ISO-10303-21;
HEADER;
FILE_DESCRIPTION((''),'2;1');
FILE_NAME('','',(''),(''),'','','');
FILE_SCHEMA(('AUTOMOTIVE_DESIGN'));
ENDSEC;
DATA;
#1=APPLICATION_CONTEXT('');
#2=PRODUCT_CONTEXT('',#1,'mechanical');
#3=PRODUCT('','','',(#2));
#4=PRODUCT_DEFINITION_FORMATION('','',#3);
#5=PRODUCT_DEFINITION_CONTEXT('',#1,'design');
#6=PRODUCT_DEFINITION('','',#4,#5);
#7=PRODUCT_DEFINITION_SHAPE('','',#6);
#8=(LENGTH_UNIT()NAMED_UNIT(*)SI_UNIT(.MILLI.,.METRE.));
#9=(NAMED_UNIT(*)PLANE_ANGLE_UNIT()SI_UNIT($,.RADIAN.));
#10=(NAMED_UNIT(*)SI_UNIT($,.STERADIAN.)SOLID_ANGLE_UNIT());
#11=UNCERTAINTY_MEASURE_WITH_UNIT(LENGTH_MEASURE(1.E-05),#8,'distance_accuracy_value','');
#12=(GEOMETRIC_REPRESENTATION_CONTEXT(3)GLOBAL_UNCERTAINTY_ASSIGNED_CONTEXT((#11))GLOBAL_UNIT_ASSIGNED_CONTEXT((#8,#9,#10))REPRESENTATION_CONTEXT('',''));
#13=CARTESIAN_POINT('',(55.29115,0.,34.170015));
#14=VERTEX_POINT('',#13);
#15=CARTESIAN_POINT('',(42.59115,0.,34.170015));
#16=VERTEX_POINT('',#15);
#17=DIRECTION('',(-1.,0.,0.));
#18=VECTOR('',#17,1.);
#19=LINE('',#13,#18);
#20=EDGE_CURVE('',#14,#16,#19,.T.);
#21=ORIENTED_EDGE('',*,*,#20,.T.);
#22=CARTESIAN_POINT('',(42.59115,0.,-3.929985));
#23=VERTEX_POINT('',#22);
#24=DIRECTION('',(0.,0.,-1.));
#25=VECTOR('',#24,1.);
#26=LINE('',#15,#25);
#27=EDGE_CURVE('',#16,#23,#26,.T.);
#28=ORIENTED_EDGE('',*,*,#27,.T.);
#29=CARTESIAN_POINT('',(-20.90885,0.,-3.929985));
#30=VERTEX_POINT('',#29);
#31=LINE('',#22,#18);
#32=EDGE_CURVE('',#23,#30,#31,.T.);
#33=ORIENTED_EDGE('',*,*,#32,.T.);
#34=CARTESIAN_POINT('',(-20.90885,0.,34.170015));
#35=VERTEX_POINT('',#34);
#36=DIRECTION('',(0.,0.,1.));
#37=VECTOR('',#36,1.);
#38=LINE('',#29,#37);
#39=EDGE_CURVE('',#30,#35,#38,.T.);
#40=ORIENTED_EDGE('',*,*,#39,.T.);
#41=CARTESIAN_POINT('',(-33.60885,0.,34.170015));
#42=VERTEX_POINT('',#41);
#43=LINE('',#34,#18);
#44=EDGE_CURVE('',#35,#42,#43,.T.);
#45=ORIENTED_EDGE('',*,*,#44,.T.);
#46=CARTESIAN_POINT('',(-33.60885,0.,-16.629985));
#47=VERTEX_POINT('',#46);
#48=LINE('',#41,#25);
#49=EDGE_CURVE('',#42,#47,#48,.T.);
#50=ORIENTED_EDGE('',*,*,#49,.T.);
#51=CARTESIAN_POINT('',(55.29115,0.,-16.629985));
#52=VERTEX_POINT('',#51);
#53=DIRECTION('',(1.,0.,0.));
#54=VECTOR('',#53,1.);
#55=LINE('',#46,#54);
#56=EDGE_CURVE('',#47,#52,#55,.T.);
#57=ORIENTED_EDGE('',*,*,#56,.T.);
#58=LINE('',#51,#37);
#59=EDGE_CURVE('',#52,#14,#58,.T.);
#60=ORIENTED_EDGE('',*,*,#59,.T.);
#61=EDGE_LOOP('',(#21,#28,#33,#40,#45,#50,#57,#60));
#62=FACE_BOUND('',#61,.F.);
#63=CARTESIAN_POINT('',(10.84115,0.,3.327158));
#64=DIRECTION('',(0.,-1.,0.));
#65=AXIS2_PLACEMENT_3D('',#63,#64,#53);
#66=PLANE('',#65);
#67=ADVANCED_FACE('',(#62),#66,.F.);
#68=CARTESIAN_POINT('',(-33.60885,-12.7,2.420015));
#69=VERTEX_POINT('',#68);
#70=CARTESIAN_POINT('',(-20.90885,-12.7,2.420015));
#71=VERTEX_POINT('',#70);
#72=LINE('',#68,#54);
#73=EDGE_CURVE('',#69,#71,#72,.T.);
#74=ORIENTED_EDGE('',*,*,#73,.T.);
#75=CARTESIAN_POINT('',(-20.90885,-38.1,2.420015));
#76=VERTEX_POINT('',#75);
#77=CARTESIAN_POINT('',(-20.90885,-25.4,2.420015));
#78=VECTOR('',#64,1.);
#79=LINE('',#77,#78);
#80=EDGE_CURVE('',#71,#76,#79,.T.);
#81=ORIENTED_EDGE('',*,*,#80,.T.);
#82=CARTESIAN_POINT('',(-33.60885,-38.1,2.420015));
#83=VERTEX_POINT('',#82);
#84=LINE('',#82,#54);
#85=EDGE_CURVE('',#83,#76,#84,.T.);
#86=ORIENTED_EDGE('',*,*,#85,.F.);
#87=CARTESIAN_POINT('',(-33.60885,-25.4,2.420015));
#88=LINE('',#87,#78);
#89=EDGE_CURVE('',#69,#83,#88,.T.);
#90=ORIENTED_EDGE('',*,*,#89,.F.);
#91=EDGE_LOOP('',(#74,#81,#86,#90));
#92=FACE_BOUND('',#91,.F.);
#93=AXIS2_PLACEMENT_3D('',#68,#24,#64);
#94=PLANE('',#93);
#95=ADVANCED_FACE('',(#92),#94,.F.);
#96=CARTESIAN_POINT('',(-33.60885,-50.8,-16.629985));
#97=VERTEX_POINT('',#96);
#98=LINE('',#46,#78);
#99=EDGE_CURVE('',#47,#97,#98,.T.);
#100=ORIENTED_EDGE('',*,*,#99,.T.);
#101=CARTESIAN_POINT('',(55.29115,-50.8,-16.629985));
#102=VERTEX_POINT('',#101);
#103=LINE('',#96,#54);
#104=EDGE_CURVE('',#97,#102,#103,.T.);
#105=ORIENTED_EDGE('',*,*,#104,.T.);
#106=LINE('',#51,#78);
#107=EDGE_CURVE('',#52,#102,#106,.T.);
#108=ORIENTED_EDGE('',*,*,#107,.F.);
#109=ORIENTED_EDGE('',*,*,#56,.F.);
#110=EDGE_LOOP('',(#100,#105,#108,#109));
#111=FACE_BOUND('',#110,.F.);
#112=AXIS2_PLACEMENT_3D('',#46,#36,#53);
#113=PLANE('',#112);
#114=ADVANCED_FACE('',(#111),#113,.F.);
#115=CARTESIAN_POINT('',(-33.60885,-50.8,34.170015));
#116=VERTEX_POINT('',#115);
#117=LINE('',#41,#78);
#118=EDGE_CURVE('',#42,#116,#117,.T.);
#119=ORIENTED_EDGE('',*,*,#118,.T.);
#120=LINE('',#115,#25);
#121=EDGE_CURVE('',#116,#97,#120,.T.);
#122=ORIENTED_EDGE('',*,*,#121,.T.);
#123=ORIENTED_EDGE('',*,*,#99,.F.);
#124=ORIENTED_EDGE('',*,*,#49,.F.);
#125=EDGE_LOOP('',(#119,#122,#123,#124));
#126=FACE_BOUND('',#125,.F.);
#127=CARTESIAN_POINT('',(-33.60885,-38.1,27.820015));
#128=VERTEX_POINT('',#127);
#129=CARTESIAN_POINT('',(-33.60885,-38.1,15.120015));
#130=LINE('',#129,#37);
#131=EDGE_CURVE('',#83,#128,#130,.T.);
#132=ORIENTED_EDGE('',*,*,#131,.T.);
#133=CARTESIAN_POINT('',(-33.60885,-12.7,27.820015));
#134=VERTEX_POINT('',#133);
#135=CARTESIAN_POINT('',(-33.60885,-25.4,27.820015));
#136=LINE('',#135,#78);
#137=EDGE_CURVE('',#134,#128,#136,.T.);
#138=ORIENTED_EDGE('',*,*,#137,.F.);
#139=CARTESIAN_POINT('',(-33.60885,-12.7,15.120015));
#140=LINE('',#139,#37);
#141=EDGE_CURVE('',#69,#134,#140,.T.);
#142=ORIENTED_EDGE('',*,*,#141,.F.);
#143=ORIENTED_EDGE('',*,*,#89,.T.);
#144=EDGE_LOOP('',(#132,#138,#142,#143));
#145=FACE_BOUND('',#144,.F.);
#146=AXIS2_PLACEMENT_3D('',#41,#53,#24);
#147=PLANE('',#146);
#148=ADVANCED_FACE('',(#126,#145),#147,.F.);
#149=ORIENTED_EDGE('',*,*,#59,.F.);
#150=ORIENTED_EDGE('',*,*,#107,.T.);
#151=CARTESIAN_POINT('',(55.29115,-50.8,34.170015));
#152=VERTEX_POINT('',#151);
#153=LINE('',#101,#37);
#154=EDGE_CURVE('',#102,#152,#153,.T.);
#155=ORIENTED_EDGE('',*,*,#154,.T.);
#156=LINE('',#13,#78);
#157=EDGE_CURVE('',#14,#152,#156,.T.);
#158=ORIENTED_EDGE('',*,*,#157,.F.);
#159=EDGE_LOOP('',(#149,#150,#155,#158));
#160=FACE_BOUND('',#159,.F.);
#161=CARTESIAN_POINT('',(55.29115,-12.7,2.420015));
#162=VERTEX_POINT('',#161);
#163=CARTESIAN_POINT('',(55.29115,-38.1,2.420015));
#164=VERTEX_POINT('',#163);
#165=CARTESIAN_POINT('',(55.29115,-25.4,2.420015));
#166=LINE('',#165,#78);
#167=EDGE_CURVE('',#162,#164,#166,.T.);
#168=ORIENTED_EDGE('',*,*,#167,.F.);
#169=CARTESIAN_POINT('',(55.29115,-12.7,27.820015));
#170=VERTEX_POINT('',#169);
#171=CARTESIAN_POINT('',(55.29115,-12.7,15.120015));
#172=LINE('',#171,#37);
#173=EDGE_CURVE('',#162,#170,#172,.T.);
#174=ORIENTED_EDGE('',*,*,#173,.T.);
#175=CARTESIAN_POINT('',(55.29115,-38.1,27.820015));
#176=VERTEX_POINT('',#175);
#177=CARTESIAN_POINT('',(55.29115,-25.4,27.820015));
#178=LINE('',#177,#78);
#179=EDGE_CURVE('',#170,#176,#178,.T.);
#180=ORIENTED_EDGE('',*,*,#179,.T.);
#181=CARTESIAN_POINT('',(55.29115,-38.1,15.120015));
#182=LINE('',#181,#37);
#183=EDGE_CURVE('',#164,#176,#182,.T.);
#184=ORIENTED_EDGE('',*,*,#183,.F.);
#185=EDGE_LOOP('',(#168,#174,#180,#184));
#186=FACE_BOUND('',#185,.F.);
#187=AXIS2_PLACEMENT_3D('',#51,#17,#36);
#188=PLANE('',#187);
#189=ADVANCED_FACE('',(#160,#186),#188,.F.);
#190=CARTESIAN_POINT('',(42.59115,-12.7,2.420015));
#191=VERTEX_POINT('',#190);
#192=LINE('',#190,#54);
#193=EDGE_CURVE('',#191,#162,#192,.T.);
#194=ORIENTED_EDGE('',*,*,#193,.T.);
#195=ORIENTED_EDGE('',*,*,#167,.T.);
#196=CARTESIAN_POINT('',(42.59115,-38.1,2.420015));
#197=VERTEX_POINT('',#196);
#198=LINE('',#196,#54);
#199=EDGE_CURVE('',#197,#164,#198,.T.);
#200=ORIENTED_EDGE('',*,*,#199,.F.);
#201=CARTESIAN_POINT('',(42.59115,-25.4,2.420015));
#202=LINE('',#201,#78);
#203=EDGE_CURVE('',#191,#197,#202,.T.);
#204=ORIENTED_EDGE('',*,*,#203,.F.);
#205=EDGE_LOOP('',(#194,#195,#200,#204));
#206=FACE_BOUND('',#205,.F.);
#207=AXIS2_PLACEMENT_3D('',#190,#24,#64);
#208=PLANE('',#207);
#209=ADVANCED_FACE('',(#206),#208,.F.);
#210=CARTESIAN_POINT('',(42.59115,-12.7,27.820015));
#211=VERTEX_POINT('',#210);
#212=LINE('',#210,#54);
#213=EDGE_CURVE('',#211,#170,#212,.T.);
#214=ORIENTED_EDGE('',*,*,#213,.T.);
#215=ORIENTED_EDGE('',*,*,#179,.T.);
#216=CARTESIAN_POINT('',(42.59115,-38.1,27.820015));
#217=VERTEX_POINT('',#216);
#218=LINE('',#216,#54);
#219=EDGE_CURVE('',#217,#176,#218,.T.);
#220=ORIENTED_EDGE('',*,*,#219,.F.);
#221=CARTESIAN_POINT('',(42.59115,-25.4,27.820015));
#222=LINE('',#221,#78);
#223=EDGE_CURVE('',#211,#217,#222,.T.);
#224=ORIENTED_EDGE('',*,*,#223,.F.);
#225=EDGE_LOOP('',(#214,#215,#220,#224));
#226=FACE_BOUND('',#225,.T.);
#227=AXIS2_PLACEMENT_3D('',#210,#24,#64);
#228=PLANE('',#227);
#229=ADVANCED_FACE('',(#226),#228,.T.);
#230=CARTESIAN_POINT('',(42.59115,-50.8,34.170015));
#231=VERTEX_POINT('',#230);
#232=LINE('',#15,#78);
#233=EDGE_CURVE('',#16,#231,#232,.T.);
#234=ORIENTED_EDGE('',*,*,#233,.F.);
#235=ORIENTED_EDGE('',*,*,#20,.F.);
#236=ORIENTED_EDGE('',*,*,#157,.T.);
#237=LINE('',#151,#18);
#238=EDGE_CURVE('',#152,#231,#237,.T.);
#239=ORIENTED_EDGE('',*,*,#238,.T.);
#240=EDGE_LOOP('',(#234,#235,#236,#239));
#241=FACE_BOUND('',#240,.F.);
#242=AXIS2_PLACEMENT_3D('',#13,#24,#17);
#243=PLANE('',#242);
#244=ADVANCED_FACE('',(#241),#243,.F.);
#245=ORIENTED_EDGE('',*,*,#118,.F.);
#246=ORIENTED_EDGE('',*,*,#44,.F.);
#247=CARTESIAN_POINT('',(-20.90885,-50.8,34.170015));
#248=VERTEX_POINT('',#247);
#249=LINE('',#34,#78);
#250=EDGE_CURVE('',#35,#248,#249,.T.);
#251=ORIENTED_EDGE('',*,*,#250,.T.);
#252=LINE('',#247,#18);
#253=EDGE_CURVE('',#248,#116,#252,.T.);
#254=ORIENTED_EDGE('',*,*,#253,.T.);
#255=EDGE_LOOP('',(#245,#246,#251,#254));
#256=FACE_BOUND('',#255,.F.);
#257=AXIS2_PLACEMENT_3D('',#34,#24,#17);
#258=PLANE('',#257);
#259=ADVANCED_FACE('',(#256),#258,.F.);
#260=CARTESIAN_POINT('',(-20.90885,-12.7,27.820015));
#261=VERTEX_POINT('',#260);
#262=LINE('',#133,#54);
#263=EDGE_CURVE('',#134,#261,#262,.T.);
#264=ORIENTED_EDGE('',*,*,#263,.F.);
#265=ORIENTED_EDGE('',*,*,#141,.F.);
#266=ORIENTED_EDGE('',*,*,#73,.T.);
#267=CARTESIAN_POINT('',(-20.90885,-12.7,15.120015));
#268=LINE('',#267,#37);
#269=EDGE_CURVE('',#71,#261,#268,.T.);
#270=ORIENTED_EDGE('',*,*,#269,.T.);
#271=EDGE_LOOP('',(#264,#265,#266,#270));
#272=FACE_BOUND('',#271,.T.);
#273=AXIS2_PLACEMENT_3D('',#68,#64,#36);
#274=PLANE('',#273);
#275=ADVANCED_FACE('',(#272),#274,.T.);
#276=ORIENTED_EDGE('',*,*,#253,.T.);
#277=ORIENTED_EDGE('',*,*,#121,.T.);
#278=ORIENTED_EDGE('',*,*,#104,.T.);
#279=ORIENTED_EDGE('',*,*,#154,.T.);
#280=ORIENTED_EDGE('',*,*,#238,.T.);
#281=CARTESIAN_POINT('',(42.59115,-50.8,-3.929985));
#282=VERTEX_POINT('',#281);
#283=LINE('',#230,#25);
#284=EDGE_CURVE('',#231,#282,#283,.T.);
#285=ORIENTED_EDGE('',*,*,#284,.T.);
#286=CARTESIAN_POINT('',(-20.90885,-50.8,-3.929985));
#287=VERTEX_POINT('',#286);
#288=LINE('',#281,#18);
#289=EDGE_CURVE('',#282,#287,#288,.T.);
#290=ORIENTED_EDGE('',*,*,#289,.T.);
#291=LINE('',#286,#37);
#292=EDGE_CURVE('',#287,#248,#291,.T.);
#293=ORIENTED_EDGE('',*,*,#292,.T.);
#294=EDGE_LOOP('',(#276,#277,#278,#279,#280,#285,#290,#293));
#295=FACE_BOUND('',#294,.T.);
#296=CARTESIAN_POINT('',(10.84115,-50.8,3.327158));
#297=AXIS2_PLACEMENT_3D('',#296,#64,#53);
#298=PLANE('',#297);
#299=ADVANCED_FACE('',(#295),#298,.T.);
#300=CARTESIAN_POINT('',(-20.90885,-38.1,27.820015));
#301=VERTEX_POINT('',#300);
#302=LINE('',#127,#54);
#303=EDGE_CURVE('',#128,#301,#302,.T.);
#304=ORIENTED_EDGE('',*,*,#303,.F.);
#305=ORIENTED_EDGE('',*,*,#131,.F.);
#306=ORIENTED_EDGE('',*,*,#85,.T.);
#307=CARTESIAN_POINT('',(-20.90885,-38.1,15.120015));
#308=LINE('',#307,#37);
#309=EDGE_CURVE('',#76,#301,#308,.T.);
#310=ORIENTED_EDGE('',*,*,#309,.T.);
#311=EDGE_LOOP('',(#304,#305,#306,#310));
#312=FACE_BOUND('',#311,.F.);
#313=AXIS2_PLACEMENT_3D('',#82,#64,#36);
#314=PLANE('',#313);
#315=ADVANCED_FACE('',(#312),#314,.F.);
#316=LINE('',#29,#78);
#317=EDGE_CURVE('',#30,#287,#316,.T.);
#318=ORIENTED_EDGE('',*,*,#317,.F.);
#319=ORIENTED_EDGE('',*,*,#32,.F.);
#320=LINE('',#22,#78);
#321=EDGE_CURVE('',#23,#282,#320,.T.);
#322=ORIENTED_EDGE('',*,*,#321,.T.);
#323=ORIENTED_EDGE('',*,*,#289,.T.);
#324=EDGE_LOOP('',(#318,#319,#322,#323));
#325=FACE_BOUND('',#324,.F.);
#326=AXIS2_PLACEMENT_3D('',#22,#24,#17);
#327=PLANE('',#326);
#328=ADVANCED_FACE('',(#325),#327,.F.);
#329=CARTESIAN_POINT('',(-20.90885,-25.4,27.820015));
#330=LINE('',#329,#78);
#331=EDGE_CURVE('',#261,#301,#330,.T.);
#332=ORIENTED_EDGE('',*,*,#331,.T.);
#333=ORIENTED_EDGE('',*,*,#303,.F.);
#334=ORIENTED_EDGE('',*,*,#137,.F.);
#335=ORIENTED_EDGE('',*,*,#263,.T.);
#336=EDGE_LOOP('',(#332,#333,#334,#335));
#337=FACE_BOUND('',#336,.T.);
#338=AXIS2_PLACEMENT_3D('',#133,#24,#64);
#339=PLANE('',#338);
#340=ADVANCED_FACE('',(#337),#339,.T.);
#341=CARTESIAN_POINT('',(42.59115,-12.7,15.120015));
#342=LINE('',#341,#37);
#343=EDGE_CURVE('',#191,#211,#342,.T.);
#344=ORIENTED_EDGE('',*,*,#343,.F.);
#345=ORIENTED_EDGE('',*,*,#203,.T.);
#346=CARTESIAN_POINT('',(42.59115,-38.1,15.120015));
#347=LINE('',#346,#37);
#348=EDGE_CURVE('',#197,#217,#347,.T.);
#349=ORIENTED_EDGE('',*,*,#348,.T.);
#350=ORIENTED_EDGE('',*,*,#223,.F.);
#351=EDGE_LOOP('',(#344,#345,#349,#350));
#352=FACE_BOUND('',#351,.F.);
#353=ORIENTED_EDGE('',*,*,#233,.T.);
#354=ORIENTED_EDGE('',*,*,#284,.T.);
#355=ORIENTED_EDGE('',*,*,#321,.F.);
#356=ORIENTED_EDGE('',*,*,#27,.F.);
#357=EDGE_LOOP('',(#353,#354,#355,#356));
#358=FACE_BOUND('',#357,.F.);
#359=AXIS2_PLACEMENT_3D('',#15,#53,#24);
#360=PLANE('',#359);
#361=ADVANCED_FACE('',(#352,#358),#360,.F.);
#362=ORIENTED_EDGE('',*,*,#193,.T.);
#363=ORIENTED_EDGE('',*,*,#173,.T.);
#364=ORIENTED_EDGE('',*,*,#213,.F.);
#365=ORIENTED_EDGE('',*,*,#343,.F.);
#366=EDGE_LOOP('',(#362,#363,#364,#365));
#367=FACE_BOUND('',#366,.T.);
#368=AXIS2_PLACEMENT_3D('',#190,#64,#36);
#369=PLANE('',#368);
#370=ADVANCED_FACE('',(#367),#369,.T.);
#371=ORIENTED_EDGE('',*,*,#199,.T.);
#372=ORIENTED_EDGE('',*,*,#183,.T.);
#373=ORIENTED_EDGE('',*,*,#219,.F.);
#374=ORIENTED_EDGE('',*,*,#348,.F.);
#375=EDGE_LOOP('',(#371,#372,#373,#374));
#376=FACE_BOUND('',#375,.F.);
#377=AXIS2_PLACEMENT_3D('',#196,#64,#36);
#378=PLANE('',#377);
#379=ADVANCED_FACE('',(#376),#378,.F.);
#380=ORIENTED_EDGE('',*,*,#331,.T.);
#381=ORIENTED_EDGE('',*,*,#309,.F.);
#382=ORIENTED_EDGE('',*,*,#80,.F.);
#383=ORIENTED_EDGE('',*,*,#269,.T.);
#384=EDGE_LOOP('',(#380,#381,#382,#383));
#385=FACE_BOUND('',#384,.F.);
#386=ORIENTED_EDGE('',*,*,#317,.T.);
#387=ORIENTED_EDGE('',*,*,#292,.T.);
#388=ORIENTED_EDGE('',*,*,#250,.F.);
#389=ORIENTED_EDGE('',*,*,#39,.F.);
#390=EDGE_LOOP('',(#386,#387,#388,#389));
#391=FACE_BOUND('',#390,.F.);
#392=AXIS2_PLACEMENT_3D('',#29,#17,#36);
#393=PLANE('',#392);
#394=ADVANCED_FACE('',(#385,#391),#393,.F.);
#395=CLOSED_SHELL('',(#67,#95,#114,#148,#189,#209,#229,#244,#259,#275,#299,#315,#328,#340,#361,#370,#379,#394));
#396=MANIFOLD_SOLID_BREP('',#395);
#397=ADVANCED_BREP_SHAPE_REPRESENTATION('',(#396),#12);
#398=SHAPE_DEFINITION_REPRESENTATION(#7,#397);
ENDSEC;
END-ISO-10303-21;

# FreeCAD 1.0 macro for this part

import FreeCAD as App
import Part
import Sketcher

V = App.Vector
Q = App.Units.Quantity

doc = App.newDocument("Part")
params = doc.addObject("Spreadsheet::Sheet", "Params")
for row, (alias, value) in enumerate([
    ("sketch1_height", "2 in"),
    ("sketch1_width", "0.5 in"),
    ("sketch1_width2", "3.5 in"),
    ("sketch1_height2", "1.5 in"),
    ("pad1_length", "2 in"),
    ("sketch2_width", "1 in"),
    ("pocket1_length", "0.5 in"),
    ("sketch3_width", "1 in"),
    ("pocket2_length", "0.5 in"),
    ("sketch4_width", "1 in"),
    ("pocket3_length", "0.5 in"),
], start=1):
    params.set(f"A{row}", alias)
    params.set(f"B{row}", "=" + value)
    params.setAlias(f"B{row}", alias)

body = doc.addObject("PartDesign::Body", "Body")

sketch1 = body.newObject("Sketcher::SketchObject", "Sketch")
sketch1.AttachmentSupport = (doc.getObject("XZ_Plane"), [""])
sketch1.MapMode = "FlatFace"
sketch1.addGeometry([
    Part.LineSegment(V(-21, 34, 0), V(-34, 34, 0)),
    Part.LineSegment(V(-34, 34, 0), V(-34, -17, 0)),
    Part.LineSegment(V(-34, -17, 0), V(55, -17, 0)),
    Part.LineSegment(V(55, -17, 0), V(55, 34, 0)),
    Part.LineSegment(V(55, 34, 0), V(43, 34, 0)),
    Part.LineSegment(V(43, 34, 0), V(43, -4, 0)),
    Part.LineSegment(V(43, -4, 0), V(-21, -4, 0)),
    Part.LineSegment(V(-21, -4, 0), V(-21, 34, 0)),
], False)
sketch1.addConstraint([
    Sketcher.Constraint("Coincident", 0, 2, 1, 1),
    Sketcher.Constraint("Coincident", 1, 2, 2, 1),
    Sketcher.Constraint("Coincident", 2, 2, 3, 1),
    Sketcher.Constraint("Coincident", 3, 2, 4, 1),
    Sketcher.Constraint("Coincident", 4, 2, 5, 1),
    Sketcher.Constraint("Coincident", 5, 2, 6, 1),
    Sketcher.Constraint("Coincident", 6, 2, 7, 1),
    Sketcher.Constraint("Coincident", 7, 2, 0, 1),
    Sketcher.Constraint("Horizontal", 0),
    Sketcher.Constraint("Vertical", 1),
    Sketcher.Constraint("Horizontal", 2),
    Sketcher.Constraint("Vertical", 3),
    Sketcher.Constraint("Horizontal", 4),
    Sketcher.Constraint("Vertical", 5),
    Sketcher.Constraint("Horizontal", 6),
    Sketcher.Constraint("Vertical", 7),
    Sketcher.Constraint("Horizontal", 0, 2, 3, 2),
    Sketcher.Constraint("Equal", 0, 4),
    Sketcher.Constraint("DistanceY", 1, 2, 1, 1, Q("2 in")),
    Sketcher.Constraint("DistanceX", 0, 2, 0, 1, Q("0.5 in")),
    Sketcher.Constraint("DistanceX", 2, 1, 2, 2, Q("3.5 in")),
    Sketcher.Constraint("DistanceY", 5, 2, 5, 1, Q("1.5 in")),
    Sketcher.Constraint("DistanceX", 0, 2, -1, 1, Q("33.60885 mm")),
    Sketcher.Constraint("DistanceY", -1, 1, 0, 2, Q("34.170015 mm")),
])
sketch1.setExpression("Constraints[18]", "Params.sketch1_height")
sketch1.setExpression("Constraints[19]", "Params.sketch1_width")
sketch1.setExpression("Constraints[20]", "Params.sketch1_width2")
sketch1.setExpression("Constraints[21]", "Params.sketch1_height2")
pad1 = body.newObject("PartDesign::Pad", "Pad")
pad1.Profile = sketch1
pad1.setExpression("Length", "Params.pad1_length")

sketch2 = body.newObject("Sketcher::SketchObject", "Sketch001")
sketch2.AttachmentSupport = (doc.getObject("YZ_Plane"), [""])
sketch2.MapMode = "FlatFace"
sketch2.AttachmentOffset = App.Placement(V(0, 0, -33.60885), App.Rotation())
sketch2.addGeometry([
    Part.LineSegment(V(-13, 28, 0), V(-13, 2, 0)),
    Part.LineSegment(V(-13, 2, 0), V(-38, 2, 0)),
    Part.LineSegment(V(-38, 2, 0), V(-38, 28, 0)),
    Part.LineSegment(V(-38, 28, 0), V(-13, 28, 0)),
], False)
sketch2.addConstraint([
    Sketcher.Constraint("Coincident", 0, 2, 1, 1),
    Sketcher.Constraint("Coincident", 1, 2, 2, 1),
    Sketcher.Constraint("Coincident", 2, 2, 3, 1),
    Sketcher.Constraint("Coincident", 3, 2, 0, 1),
    Sketcher.Constraint("Vertical", 0),
    Sketcher.Constraint("Horizontal", 1),
    Sketcher.Constraint("Vertical", 2),
    Sketcher.Constraint("Horizontal", 3),
    Sketcher.Constraint("Equal", 3, 0),
    Sketcher.Constraint("DistanceX", 1, 2, 1, 1, Q("1 in")),
    Sketcher.Constraint("DistanceX", 0, 2, -1, 1, Q("0.5 in")),
    Sketcher.Constraint("DistanceY", -1, 1, 0, 2, Q("2.420015 mm")),
])
sketch2.setExpression("Constraints[9]", "Params.sketch2_width")
pocket1 = body.newObject("PartDesign::Pocket", "Pocket")
pocket1.Profile = sketch2
pocket1.setExpression("Length", "Params.pocket1_length")
pocket1.Reversed = True

sketch3 = body.newObject("Sketcher::SketchObject", "Sketch002")
sketch3.AttachmentSupport = (doc.getObject("YZ_Plane"), [""])
sketch3.MapMode = "FlatFace"
sketch3.AttachmentOffset = App.Placement(V(0, 0, 42.59115), App.Rotation())
sketch3.addGeometry([
    Part.LineSegment(V(-13, 28, 0), V(-13, 2, 0)),
    Part.LineSegment(V(-13, 2, 0), V(-38, 2, 0)),
    Part.LineSegment(V(-38, 2, 0), V(-38, 28, 0)),
    Part.LineSegment(V(-38, 28, 0), V(-13, 28, 0)),
], False)
sketch3.addConstraint([
    Sketcher.Constraint("Coincident", 0, 2, 1, 1),
    Sketcher.Constraint("Coincident", 1, 2, 2, 1),
    Sketcher.Constraint("Coincident", 2, 2, 3, 1),
    Sketcher.Constraint("Coincident", 3, 2, 0, 1),
    Sketcher.Constraint("Vertical", 0),
    Sketcher.Constraint("Horizontal", 1),
    Sketcher.Constraint("Vertical", 2),
    Sketcher.Constraint("Horizontal", 3),
    Sketcher.Constraint("Equal", 3, 0),
    Sketcher.Constraint("DistanceX", 1, 2, 1, 1, Q("1 in")),
    Sketcher.Constraint("DistanceX", 0, 2, -1, 1, Q("0.5 in")),
    Sketcher.Constraint("DistanceY", -1, 1, 0, 2, Q("2.420015 mm")),
])
sketch3.setExpression("Constraints[9]", "Params.sketch3_width")
pocket2 = body.newObject("PartDesign::Pocket", "Pocket001")
pocket2.Profile = sketch3
pocket2.setExpression("Length", "Params.pocket2_length")
pocket2.Reversed = True

sketch4 = body.newObject("Sketcher::SketchObject", "Sketch003")
sketch4.AttachmentSupport = (doc.getObject("YZ_Plane"), [""])
sketch4.MapMode = "FlatFace"
sketch4.AttachmentOffset = App.Placement(V(0, 0, -33.60885), App.Rotation())
sketch4.addGeometry([
    Part.LineSegment(V(-13, 28, 0), V(-13, 2, 0)),
    Part.LineSegment(V(-13, 2, 0), V(-38, 2, 0)),
    Part.LineSegment(V(-38, 2, 0), V(-38, 28, 0)),
    Part.LineSegment(V(-38, 28, 0), V(-13, 28, 0)),
], False)
sketch4.addConstraint([
    Sketcher.Constraint("Coincident", 0, 2, 1, 1),
    Sketcher.Constraint("Coincident", 1, 2, 2, 1),
    Sketcher.Constraint("Coincident", 2, 2, 3, 1),
    Sketcher.Constraint("Coincident", 3, 2, 0, 1),
    Sketcher.Constraint("Vertical", 0),
    Sketcher.Constraint("Horizontal", 1),
    Sketcher.Constraint("Vertical", 2),
    Sketcher.Constraint("Horizontal", 3),
    Sketcher.Constraint("Equal", 3, 0),
    Sketcher.Constraint("DistanceX", 1, 2, 1, 1, Q("1 in")),
    Sketcher.Constraint("DistanceX", 0, 2, -1, 1, Q("0.5 in")),
    Sketcher.Constraint("DistanceY", -1, 1, 0, 2, Q("2.420015 mm")),
])
sketch4.setExpression("Constraints[9]", "Params.sketch4_width")
pocket3 = body.newObject("PartDesign::Pocket", "Pocket002")
pocket3.Profile = sketch4
pocket3.setExpression("Length", "Params.pocket3_length")
pocket3.Reversed = True

doc.recompute()
